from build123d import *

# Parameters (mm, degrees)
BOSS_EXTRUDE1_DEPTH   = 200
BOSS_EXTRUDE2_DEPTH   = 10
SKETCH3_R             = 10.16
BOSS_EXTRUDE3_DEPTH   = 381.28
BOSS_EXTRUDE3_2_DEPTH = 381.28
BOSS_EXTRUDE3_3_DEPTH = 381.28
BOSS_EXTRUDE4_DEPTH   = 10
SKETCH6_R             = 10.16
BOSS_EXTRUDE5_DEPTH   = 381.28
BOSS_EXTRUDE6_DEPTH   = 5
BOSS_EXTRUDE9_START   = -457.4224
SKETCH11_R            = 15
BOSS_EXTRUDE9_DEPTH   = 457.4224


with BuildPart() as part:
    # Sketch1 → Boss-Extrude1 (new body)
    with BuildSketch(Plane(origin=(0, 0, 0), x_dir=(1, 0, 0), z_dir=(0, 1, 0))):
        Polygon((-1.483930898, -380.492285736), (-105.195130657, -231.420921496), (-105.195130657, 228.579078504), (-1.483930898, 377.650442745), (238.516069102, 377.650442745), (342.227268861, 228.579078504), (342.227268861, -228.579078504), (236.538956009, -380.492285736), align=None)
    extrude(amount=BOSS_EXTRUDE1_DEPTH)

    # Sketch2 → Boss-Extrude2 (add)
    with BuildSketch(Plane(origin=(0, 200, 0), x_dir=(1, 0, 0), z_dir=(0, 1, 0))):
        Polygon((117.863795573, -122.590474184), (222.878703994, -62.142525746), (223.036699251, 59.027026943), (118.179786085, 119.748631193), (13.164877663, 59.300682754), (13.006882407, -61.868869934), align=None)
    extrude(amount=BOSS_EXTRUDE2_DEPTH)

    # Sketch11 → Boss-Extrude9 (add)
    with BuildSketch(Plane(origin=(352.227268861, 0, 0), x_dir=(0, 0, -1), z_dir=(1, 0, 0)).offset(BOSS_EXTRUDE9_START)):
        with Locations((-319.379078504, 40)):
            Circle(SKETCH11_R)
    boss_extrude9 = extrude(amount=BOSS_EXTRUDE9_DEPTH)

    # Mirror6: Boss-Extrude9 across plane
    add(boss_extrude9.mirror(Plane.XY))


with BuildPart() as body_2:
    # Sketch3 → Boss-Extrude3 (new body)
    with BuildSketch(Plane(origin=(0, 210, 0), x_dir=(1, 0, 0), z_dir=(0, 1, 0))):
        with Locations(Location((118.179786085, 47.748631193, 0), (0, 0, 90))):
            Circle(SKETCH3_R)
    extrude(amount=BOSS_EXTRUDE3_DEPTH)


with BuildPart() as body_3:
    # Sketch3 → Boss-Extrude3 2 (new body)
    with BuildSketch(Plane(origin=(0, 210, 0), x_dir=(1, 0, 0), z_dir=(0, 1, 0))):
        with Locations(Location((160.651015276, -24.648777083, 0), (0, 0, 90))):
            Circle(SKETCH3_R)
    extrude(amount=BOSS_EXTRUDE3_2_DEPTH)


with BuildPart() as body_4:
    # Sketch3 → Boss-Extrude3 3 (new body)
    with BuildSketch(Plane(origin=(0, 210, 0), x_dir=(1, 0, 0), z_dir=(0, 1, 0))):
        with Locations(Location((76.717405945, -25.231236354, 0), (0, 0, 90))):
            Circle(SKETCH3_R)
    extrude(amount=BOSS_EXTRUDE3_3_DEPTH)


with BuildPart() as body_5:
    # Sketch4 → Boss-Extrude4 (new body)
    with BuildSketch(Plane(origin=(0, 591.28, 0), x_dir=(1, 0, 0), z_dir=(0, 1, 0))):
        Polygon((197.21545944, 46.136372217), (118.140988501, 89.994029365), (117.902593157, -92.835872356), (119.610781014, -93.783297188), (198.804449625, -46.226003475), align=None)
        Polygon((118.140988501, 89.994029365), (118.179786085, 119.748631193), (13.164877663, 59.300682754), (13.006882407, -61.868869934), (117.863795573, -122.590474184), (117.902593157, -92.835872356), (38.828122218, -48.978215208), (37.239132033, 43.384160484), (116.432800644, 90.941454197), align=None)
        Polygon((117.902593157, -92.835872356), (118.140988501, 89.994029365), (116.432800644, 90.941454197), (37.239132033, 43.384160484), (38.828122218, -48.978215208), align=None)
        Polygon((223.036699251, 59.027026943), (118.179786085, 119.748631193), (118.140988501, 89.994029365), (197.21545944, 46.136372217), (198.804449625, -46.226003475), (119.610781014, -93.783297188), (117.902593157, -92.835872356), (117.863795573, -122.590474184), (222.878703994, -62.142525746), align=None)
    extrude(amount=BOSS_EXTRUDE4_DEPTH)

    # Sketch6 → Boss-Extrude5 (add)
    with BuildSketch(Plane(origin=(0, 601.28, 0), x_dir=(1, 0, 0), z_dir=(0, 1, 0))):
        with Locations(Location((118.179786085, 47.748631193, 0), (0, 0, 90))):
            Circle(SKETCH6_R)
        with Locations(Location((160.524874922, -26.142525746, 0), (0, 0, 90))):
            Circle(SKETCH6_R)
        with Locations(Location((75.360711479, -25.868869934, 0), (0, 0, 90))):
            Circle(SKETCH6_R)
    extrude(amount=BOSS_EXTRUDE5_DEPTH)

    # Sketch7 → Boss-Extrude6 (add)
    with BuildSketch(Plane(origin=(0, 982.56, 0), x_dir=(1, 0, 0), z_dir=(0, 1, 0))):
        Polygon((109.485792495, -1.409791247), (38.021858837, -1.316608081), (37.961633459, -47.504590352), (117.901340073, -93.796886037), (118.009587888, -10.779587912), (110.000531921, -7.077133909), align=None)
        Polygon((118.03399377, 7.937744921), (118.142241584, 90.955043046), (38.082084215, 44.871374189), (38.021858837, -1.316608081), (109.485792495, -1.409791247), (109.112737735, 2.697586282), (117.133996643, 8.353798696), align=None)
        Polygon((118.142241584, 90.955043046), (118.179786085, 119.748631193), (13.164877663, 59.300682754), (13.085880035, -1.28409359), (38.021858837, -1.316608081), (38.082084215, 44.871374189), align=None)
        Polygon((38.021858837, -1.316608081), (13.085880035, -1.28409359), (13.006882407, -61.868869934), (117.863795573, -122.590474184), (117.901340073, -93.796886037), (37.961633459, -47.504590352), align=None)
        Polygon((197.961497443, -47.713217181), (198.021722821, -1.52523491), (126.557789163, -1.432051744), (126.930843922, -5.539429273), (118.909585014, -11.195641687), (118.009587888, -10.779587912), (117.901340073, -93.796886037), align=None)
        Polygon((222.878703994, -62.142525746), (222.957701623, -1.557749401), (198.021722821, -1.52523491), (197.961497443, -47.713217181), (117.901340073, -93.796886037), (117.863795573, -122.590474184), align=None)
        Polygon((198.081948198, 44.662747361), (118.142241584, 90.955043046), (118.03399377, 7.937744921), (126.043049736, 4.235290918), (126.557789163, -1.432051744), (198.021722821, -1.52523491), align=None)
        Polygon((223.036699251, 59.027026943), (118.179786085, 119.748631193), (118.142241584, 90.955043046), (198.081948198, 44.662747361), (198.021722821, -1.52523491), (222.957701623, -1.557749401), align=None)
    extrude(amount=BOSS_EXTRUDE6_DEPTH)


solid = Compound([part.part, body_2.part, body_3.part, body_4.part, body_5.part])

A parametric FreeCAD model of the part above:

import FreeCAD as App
import Part
import Sketcher
from FreeCAD import Vector
Q = App.Units.Quantity


def add_polygon(sketch, points):
    """Adds a closed chain of lines whose ends are joined by coincident constraints."""
    first, n = sketch.GeometryCount, len(points)
    for a, b in zip(points, points[1:] + points[:1]):
        sketch.addGeometry(Part.LineSegment(App.Vector(*a, 0), App.Vector(*b, 0)), False)
    for i in range(n):
        sketch.addConstraint(Sketcher.Constraint("Coincident", first + i, 2, first + (i + 1) % n, 1))

doc = App.newDocument("Part")
body = doc.addObject("PartDesign::Body", "Body")

# Sketch on XZ plane
sketch1 = body.newObject("Sketcher::SketchObject", "Sketch")
sketch1.AttachmentSupport = (doc.getObject("XZ_Plane"), [""])
sketch1.MapMode = "FlatFace"
add_polygon(sketch1, [(-105, 231), (-1, 380), (237, 380), (342, 229), (342, -229), (239, -378), (-1, -378), (-105, -229)])  # lines 0-7
sketch1.addConstraint(Sketcher.Constraint("Horizontal", 1))
sketch1.addConstraint(Sketcher.Constraint("Vertical", 3))
sketch1.addConstraint(Sketcher.Constraint("Horizontal", 5))
sketch1.addConstraint(Sketcher.Constraint("Vertical", 7))
sketch1.addConstraint(Sketcher.Constraint("Parallel", 0, 4))
sketch1.addConstraint(Sketcher.Constraint("Parallel", 2, 6))
sketch1.addConstraint(Sketcher.Constraint("Horizontal", 3, 2, 6, 2))
sketch1.addConstraint(Sketcher.Constraint("Vertical", 0, 2, 5, 2))
sketch1.addConstraint(Sketcher.Constraint("Equal", 0, 4))
sketch1.addConstraint(Sketcher.Constraint("DistanceX", 5, 2, 5, 1, Q("240 mm")))
sketch1.addConstraint(Sketcher.Constraint("DistanceY", 7, 1, 7, 2, Q("460 mm")))
sketch1.addConstraint(Sketcher.Constraint("DistanceX", 0, 2, 2, 2, Q("343.7112 mm")))
sketch1.addConstraint(Sketcher.Constraint("Distance", 0, Q("181.599242 mm")))
sketch1.addConstraint(Sketcher.Constraint("DistanceX", 1, 1, 1, 2, Q("238.022887 mm")))
sketch1.addConstraint(Sketcher.Constraint("DistanceX", 0, 2, -1, 1, Q("1.483931 mm")))
sketch1.addConstraint(Sketcher.Constraint("DistanceY", -1, 1, 2, 2, Q("228.579079 mm")))
pad1 = body.newObject("PartDesign::Pad", "Pad")
pad1.Profile = sketch1
pad1.Length = 200
pad1.Reversed = True

# Sketch on XZ plane
sketch2 = body.newObject("Sketcher::SketchObject", "Sketch001")
sketch2.AttachmentSupport = (doc.getObject("XZ_Plane"), [""])
sketch2.MapMode = "FlatFace"
sketch2.AttachmentOffset = App.Placement(Vector(0, 0, -200), App.Rotation())
add_polygon(sketch2, [(118, 123), (223, 62), (223, -59), (118, -120), (13, -59), (13, 62)])  # lines 0-5
sketch2.addConstraint(Sketcher.Constraint("Parallel", 0, 3))
sketch2.addConstraint(Sketcher.Constraint("Parallel", 1, 4))
sketch2.addConstraint(Sketcher.Constraint("Parallel", 2, 5))
sketch2.addConstraint(Sketcher.Constraint("Equal", 0, 1))
sketch2.addConstraint(Sketcher.Constraint("Equal", 1, 2))
sketch2.addConstraint(Sketcher.Constraint("Equal", 2, 3))
sketch2.addConstraint(Sketcher.Constraint("DistanceX", -1, 1, 1, 2, Q("223.036699 mm")))
sketch2.addConstraint(Sketcher.Constraint("DistanceY", 2, 2, 4, 2, Q("181.617501 mm")))
sketch2.addConstraint(Sketcher.Constraint("DistanceY", 2, 2, -1, 1, Q("119.748631 mm")))
sketch2.addConstraint(Sketcher.Constraint("DistanceX", 3, 2, 2, 2, Q("105.014908 mm")))
sketch2.addConstraint(Sketcher.Constraint("DistanceX", 3, 2, 1, 2, Q("209.871822 mm")))
sketch2.addConstraint(Sketcher.Constraint("DistanceX", 5, 2, 2, 2, Q("0.315991 mm")))
pad2 = body.newObject("PartDesign::Pad", "Pad001")
pad2.Profile = sketch2
pad2.Length = 10
pad2.Reversed = True

# Sketch on YZ plane
sketch3 = body.newObject("Sketcher::SketchObject", "Sketch002")
sketch3.AttachmentSupport = (doc.getObject("YZ_Plane"), [""])
sketch3.MapMode = "FlatFace"
sketch3.AttachmentOffset = App.Placement(Vector(0, 0, -105.195131), App.Rotation())
sketch3.addGeometry(Part.Circle(Vector(40, 319, 0), Vector(0, 0, 1), 15), False)
sketch3.addConstraint(Sketcher.Constraint("Diameter", 0, Q("30 mm")))
sketch3.addConstraint(Sketcher.Constraint("DistanceX", -1, 1, 0, 3, Q("40 mm")))
sketch3.addConstraint(Sketcher.Constraint("DistanceY", -1, 1, 0, 3, Q("319.379079 mm")))
pad3 = body.newObject("PartDesign::Pad", "Pad002")
pad3.Profile = sketch3
pad3.Length = 457.4224
doc.recompute()

mirrored = body.newObject("PartDesign::Mirrored", "Mirrored")
mirrored.Originals = [pad3]
mirrored.MirrorPlane = (doc.getObject("XY_Plane"), [""])
body.Tip = mirrored
body2 = doc.addObject("PartDesign::Body", "Body001")

# Sketch on XZ plane
sketch4 = body2.newObject("Sketcher::SketchObject", "Sketch003")
sketch4.AttachmentSupport = (doc.getObject("XZ_Plane001"), [""])
sketch4.MapMode = "FlatFace"
sketch4.AttachmentOffset = App.Placement(Vector(0, 0, -210), App.Rotation())
sketch4.addGeometry(Part.Circle(Vector(118, -48, 0), Vector(0, 0, 1), 10), False)
sketch4.addConstraint(Sketcher.Constraint("Diameter", 0, Q("20.32 mm")))
sketch4.addConstraint(Sketcher.Constraint("DistanceY", 0, 3, -1, 1, Q("47.748631 mm")))
sketch4.addConstraint(Sketcher.Constraint("DistanceX", -1, 1, 0, 3, Q("118.179786 mm")))
pad4 = body2.newObject("PartDesign::Pad", "Pad003")
pad4.Profile = sketch4
pad4.Length = 381.28
pad4.Reversed = True
body3 = doc.addObject("PartDesign::Body", "Body002")

# Sketch on XZ plane
sketch5 = body3.newObject("Sketcher::SketchObject", "Sketch004")
sketch5.AttachmentSupport = (doc.getObject("XZ_Plane002"), [""])
sketch5.MapMode = "FlatFace"
sketch5.AttachmentOffset = App.Placement(Vector(0, 0, -210), App.Rotation())
sketch5.addGeometry(Part.Circle(Vector(161, 25, 0), Vector(0, 0, 1), 10), False)
sketch5.addConstraint(Sketcher.Constraint("Diameter", 0, Q("20.32 mm")))
sketch5.addConstraint(Sketcher.Constraint("DistanceX", -1, 1, 0, 3, Q("160.651015 mm")))
sketch5.addConstraint(Sketcher.Constraint("DistanceY", -1, 1, 0, 3, Q("24.648777 mm")))
pad5 = body3.newObject("PartDesign::Pad", "Pad004")
pad5.Profile = sketch5
pad5.Length = 381.28
pad5.Reversed = True
body4 = doc.addObject("PartDesign::Body", "Body003")

# Sketch on XZ plane
sketch6 = body4.newObject("Sketcher::SketchObject", "Sketch005")
sketch6.AttachmentSupport = (doc.getObject("XZ_Plane003"), [""])
sketch6.MapMode = "FlatFace"
sketch6.AttachmentOffset = App.Placement(Vector(0, 0, -210), App.Rotation())
sketch6.addGeometry(Part.Circle(Vector(77, 25, 0), Vector(0, 0, 1), 10), False)
sketch6.addConstraint(Sketcher.Constraint("Diameter", 0, Q("20.32 mm")))
sketch6.addConstraint(Sketcher.Constraint("DistanceX", -1, 1, 0, 3, Q("76.717406 mm")))
sketch6.addConstraint(Sketcher.Constraint("DistanceY", -1, 1, 0, 3, Q("25.231236 mm")))
pad6 = body4.newObject("PartDesign::Pad", "Pad005")
pad6.Profile = sketch6
pad6.Length = 381.28
pad6.Reversed = True
body5 = doc.addObject("PartDesign::Body", "Body004")

# Sketch on XZ plane
sketch7 = body5.newObject("Sketcher::SketchObject", "Sketch006")
sketch7.AttachmentSupport = (doc.getObject("XZ_Plane004"), [""])
sketch7.MapMode = "FlatFace"
sketch7.AttachmentOffset = App.Placement(Vector(0, 0, -591.28), App.Rotation())
add_polygon(sketch7, [(118, -120), (13, -59), (13, 62), (118, 123), (223, 62), (223, -59)])  # lines 0-5
sketch7.addConstraint(Sketcher.Constraint("Parallel", 0, 3))
sketch7.addConstraint(Sketcher.Constraint("Parallel", 1, 4))
sketch7.addConstraint(Sketcher.Constraint("Parallel", 2, 5))
sketch7.addConstraint(Sketcher.Constraint("Equal", 0, 1))
sketch7.addConstraint(Sketcher.Constraint("Equal", 1, 2))
sketch7.addConstraint(Sketcher.Constraint("Equal", 2, 3))
sketch7.addConstraint(Sketcher.Constraint("DistanceX", -1, 1, 4, 2, Q("223.036699 mm")))
sketch7.addConstraint(Sketcher.Constraint("DistanceY", 4, 2, 2, 2, Q("181.617501 mm")))
sketch7.addConstraint(Sketcher.Constraint("DistanceY", -1, 1, 1, 2, Q("61.86887 mm")))
sketch7.addConstraint(Sketcher.Constraint("DistanceX", 2, 2, 3, 2, Q("105.014908 mm")))
sketch7.addConstraint(Sketcher.Constraint("DistanceX", 1, 2, 3, 2, Q("209.871822 mm")))
sketch7.addConstraint(Sketcher.Constraint("DistanceX", 2, 2, 5, 2, Q("0.315991 mm")))
pad7 = body5.newObject("PartDesign::Pad", "Pad006")
pad7.Profile = sketch7
pad7.Length = 10
pad7.Reversed = True

# Sketch on XZ plane
sketch8 = body5.newObject("Sketcher::SketchObject", "Sketch007")
sketch8.AttachmentSupport = (doc.getObject("XZ_Plane004"), [""])
sketch8.MapMode = "FlatFace"
sketch8.AttachmentOffset = App.Placement(Vector(0, 0, -601.28), App.Rotation())
sketch8.addGeometry(Part.Circle(Vector(118, -48, 0), Vector(0, 0, 1), 10), False)
sketch8.addGeometry(Part.Circle(Vector(161, 26, 0), Vector(0, 0, 1), 10), False)
sketch8.addGeometry(Part.Circle(Vector(75, 26, 0), Vector(0, 0, 1), 10), False)
sketch8.addConstraint(Sketcher.Constraint("Equal", 0, 1))
sketch8.addConstraint(Sketcher.Constraint("Equal", 1, 2))
sketch8.addConstraint(Sketcher.Constraint("Diameter", 0, Q("20.32 mm")))
sketch8.addConstraint(Sketcher.Constraint("DistanceY", 0, 3, 2, 3, Q("73.617501 mm")))
sketch8.addConstraint(Sketcher.Constraint("DistanceY", 0, 3, -1, 1, Q("47.748631 mm")))
sketch8.addConstraint(Sketcher.Constraint("DistanceX", -1, 1, 2, 3, Q("75.360711 mm")))
sketch8.addConstraint(Sketcher.Constraint("DistanceX", 0, 3, 1, 3, Q("42.345089 mm")))
sketch8.addConstraint(Sketcher.Constraint("DistanceX", -1, 1, 0, 3, Q("118.179786 mm")))
sketch8.addConstraint(Sketcher.Constraint("DistanceY", -1, 1, 1, 3, Q("26.142526 mm")))
pad8 = body5.newObject("PartDesign::Pad", "Pad007")
pad8.Profile = sketch8
pad8.Length = 381.28
pad8.Reversed = True

# Sketch on XZ plane
sketch9 = body5.newObject("Sketcher::SketchObject", "Sketch008")
sketch9.AttachmentSupport = (doc.getObject("XZ_Plane004"), [""])
sketch9.MapMode = "FlatFace"
sketch9.AttachmentOffset = App.Placement(Vector(0, 0, -982.56), App.Rotation())
add_polygon(sketch9, [(118.2, -119.7), (13.2, -59.3), (13, 61.9), (117.9, 122.6), (222.9, 62.1), (223, 1.6), (223, -59)])  # lines 0-6
add_polygon(sketch9, [(118, 10.8), (110, 7.1), (109.5, 1.4), (109.1, -2.7), (117.1, -8.4), (118, -7.9), (126, -4.2), (126.6, 1.4), (126.9, 5.5), (118.9, 11.2)])  # lines 7-16
sketch9.addConstraint(Sketcher.Constraint("Parallel", 0, 3))
sketch9.addConstraint(Sketcher.Constraint("Parallel", 1, 4))
sketch9.addConstraint(Sketcher.Constraint("Parallel", 4, 5))
sketch9.addConstraint(Sketcher.Constraint("Parallel", 2, 6))
sketch9.addConstraint(Sketcher.Constraint("Parallel", 8, 9))
sketch9.addConstraint(Sketcher.Constraint("Parallel", 7, 11))
sketch9.addConstraint(Sketcher.Constraint("Parallel", 11, 12))
sketch9.addConstraint(Sketcher.Constraint("Parallel", 9, 13))
sketch9.addConstraint(Sketcher.Constraint("Parallel", 13, 14))
sketch9.addConstraint(Sketcher.Constraint("Parallel", 10, 15))
sketch9.addConstraint(Sketcher.Constraint("Parallel", 12, 16))
sketch9.addConstraint(Sketcher.Constraint("Equal", 0, 1))
sketch9.addConstraint(Sketcher.Constraint("Equal", 1, 2))
sketch9.addConstraint(Sketcher.Constraint("Equal", 2, 3))
sketch9.addConstraint(Sketcher.Constraint("Equal", 4, 5))
sketch9.addConstraint(Sketcher.Constraint("Equal", 7, 12))
sketch9.addConstraint(Sketcher.Constraint("Equal", 8, 13))
sketch9.addConstraint(Sketcher.Constraint("Equal", 9, 14))
sketch9.addConstraint(Sketcher.Constraint("DistanceX", -1, 1, 4, 2, Q("222.957702 mm")))
sketch9.addConstraint(Sketcher.Constraint("DistanceX", -1, 1, 5, 2, Q("223.036699 mm")))
sketch9.addConstraint(Sketcher.Constraint("DistanceY", 10, 2, -1, 1, Q("8.353799 mm")))
sketch9.addConstraint(Sketcher.Constraint("DistanceY", 5, 2, 2, 2, Q("181.617501 mm")))
sketch9.addConstraint(Sketcher.Constraint("DistanceX", 8, 2, 11, 2, Q("8.548201 mm")))
sketch9.addConstraint(Sketcher.Constraint("Distance", 8, Q("5.69067 mm")))
sketch9.addConstraint(Sketcher.Constraint("Distance", 11, Q("0.991512 mm")))
sketch9.addConstraint(Sketcher.Constraint("DistanceY", -1, 1, 1, 2, Q("61.86887 mm")))
sketch9.addConstraint(Sketcher.Constraint("DistanceY", -1, 1, 4, 2, Q("1.557749 mm")))
sketch9.addConstraint(Sketcher.Constraint("DistanceX", -1, 1, 7, 2, Q("110.000532 mm")))
sketch9.addConstraint(Sketcher.Constraint("DistanceY", -1, 1, 8, 2, Q("1.409791 mm")))
sketch9.addConstraint(Sketcher.Constraint("DistanceX", -1, 1, 12, 2, Q("126.04305 mm")))
sketch9.addConstraint(Sketcher.Constraint("DistanceY", 12, 2, -1, 1, Q("4.235291 mm")))
sketch9.addConstraint(Sketcher.Constraint("DistanceX", -1, 1, 13, 2, Q("126.557789 mm")))
sketch9.addConstraint(Sketcher.Constraint("DistanceY", -1, 1, 14, 2, Q("5.539429 mm")))
sketch9.addConstraint(Sketcher.Constraint("DistanceX", 2, 2, 3, 2, Q("105.014908 mm")))
pad9 = body5.newObject("PartDesign::Pad", "Pad008")
pad9.Profile = sketch9
pad9.Length = 5
pad9.Reversed = True

doc.recompute()
